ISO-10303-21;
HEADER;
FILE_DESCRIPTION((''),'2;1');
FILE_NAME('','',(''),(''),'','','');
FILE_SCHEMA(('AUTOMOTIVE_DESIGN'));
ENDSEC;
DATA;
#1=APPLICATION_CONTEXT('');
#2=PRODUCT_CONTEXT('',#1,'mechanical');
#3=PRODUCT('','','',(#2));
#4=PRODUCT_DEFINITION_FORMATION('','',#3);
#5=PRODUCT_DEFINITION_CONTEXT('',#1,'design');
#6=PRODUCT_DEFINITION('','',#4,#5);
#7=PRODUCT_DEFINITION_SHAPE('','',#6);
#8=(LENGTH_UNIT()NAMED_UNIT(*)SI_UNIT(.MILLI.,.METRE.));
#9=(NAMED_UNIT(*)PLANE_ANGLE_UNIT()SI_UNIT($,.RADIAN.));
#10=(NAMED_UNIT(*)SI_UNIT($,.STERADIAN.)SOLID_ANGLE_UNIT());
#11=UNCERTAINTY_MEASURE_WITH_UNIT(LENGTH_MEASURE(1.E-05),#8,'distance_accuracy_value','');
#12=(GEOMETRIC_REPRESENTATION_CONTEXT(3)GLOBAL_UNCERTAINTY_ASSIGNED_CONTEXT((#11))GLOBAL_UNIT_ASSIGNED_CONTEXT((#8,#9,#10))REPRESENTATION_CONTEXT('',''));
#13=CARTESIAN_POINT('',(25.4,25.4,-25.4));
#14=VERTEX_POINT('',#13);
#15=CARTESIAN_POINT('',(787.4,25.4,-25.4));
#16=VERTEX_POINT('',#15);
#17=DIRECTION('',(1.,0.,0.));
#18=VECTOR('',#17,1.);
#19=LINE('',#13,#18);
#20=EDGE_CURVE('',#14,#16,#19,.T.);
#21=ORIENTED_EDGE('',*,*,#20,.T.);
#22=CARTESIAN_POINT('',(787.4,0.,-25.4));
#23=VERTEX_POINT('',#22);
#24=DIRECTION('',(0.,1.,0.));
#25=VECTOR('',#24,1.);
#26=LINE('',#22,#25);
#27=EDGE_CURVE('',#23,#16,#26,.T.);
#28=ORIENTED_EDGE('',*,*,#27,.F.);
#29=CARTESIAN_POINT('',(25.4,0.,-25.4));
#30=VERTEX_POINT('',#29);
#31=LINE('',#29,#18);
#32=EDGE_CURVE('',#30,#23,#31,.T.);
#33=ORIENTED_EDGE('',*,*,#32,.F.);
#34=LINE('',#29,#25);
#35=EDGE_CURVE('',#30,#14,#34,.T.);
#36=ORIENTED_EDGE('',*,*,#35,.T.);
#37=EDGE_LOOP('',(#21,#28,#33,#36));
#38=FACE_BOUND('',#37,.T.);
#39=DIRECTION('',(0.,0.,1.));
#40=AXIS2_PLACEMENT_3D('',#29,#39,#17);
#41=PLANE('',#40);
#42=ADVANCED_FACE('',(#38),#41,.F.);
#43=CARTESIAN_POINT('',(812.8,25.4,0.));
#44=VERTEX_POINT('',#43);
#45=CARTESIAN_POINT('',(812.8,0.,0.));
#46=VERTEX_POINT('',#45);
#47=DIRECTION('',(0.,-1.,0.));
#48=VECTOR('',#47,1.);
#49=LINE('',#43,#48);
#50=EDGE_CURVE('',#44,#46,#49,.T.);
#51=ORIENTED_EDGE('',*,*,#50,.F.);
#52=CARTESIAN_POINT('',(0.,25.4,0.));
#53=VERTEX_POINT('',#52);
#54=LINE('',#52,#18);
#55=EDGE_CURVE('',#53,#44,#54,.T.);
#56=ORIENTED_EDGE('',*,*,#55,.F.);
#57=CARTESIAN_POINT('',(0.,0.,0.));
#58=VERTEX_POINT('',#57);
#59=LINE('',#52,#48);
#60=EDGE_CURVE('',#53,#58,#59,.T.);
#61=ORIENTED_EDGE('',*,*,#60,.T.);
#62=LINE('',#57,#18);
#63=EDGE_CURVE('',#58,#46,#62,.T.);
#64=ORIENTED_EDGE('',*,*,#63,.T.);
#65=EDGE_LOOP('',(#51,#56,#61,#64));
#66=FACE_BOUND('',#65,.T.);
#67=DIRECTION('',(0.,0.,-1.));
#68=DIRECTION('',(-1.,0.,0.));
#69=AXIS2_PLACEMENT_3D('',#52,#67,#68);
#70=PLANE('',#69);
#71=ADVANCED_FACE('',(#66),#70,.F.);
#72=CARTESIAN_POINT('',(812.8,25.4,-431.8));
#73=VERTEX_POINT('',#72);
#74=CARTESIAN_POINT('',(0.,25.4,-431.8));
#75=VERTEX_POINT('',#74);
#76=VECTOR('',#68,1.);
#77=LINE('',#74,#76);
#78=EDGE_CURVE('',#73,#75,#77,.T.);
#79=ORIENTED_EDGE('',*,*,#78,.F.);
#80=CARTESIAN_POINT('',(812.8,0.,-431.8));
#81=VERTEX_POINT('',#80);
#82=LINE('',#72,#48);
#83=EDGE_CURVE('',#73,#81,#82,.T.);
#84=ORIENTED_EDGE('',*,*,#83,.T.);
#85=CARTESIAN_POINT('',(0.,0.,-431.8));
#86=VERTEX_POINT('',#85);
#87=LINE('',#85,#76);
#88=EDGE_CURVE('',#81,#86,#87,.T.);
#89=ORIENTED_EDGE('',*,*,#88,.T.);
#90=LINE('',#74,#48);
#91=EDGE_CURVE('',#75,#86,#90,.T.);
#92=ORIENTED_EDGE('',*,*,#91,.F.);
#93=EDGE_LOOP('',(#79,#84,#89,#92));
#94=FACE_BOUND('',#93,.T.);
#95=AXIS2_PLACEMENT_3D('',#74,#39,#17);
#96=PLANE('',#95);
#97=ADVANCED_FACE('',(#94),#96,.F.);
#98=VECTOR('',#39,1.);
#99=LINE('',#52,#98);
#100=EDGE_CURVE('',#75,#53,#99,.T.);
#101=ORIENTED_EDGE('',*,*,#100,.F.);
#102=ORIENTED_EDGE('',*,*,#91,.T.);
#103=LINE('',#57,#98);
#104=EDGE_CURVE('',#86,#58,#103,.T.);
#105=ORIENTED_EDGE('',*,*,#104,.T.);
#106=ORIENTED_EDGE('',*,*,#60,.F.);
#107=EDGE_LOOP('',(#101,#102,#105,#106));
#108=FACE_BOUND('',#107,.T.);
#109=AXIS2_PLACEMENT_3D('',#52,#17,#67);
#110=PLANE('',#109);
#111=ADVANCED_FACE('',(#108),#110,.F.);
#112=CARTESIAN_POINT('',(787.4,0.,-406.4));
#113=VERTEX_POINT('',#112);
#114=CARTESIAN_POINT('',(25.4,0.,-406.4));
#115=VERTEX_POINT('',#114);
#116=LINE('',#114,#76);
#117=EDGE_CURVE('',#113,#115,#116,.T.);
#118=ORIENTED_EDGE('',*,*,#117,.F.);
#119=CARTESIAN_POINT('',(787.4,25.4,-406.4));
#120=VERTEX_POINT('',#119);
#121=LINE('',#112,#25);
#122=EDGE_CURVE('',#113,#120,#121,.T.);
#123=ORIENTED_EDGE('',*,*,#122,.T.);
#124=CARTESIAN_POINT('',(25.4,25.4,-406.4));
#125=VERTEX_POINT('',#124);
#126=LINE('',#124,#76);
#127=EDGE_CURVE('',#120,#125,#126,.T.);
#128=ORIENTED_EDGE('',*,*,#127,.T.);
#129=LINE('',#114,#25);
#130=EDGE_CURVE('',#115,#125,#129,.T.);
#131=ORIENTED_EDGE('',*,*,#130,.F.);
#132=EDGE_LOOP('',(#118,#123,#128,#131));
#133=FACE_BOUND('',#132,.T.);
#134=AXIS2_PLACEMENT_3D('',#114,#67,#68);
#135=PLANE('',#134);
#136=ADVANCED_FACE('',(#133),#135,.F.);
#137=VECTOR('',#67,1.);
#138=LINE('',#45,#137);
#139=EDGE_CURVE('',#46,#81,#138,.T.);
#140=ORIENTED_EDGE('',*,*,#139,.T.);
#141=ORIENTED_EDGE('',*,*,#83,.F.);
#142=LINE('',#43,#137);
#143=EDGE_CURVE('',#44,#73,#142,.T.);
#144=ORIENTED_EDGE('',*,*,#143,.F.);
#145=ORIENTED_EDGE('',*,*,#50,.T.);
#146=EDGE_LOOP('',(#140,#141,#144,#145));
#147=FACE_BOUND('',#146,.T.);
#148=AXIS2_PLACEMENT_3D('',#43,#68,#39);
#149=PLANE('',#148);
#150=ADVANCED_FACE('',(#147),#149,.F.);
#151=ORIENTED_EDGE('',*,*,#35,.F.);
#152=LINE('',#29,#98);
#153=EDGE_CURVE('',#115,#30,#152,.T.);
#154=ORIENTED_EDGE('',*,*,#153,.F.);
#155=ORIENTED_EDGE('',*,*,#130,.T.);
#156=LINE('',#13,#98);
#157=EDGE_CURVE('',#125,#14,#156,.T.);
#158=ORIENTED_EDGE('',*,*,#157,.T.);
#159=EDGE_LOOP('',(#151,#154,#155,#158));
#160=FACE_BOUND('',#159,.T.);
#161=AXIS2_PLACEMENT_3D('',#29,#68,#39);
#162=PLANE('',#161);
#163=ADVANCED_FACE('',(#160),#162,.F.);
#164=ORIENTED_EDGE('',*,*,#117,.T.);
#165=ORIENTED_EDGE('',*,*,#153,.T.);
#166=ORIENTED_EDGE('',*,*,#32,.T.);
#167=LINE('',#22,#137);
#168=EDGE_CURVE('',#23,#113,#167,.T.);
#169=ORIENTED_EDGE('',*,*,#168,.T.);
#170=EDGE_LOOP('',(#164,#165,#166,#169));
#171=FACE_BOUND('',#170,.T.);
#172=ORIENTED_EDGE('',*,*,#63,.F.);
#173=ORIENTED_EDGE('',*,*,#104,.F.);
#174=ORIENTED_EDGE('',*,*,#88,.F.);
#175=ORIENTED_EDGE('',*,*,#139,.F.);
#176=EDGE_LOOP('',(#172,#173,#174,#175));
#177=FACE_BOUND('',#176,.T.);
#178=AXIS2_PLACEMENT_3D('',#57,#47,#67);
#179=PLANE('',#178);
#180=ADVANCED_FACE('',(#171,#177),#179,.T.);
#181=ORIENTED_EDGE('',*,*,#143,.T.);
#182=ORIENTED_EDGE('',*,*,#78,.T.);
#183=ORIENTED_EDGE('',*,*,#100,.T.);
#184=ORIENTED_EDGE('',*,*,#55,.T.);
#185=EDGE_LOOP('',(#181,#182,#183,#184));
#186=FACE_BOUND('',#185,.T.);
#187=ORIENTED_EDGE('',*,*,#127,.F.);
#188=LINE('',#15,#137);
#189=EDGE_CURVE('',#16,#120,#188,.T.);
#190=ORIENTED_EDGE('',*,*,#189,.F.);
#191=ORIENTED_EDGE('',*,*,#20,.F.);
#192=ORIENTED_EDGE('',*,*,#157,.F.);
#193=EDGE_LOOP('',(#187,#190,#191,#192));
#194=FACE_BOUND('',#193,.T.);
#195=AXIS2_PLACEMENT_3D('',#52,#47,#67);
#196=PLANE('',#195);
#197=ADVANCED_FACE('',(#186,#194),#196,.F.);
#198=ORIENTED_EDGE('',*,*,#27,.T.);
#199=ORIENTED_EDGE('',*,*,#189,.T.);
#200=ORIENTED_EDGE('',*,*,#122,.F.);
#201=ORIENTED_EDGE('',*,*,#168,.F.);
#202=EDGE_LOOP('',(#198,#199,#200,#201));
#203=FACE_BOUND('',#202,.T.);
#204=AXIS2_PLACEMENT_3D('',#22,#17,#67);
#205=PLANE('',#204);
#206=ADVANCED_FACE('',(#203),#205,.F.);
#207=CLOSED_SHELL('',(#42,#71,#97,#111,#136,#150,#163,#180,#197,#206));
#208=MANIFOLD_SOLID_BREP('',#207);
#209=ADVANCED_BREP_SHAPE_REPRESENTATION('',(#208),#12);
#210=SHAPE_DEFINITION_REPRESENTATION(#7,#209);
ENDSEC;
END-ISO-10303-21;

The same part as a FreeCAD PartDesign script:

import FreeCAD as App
import Part
import Sketcher
from FreeCAD import Vector
Q = App.Units.Quantity

doc = App.newDocument("Part")
params = doc.addObject("Spreadsheet::Sheet", "Params")
for row, (alias, value) in enumerate([
    ("sketch1_width", "32 in"),
    ("sketch1_height", "17 in"),
    ("pad1_length", "1 in"),
    ("sketch2_width", "30 in"),
    ("sketch2_height", "15 in"),
], start=1):
    params.set(f"A{row}", alias)
    params.set(f"B{row}", "=" + value)
    params.setAlias(f"B{row}", alias)

body = doc.addObject("PartDesign::Body", "Body")

sketch1 = doc.addObject("Sketcher::SketchObject", "Sketch")
body.addObject(sketch1)
sketch1.AttachmentSupport = (doc.XZ_Plane, [""])
sketch1.MapMode = "FlatFace"
sketch1.addGeometry([
    Part.LineSegment(Vector(0, -432, 0), Vector(0, 0, 0)),
    Part.LineSegment(Vector(0, 0, 0), Vector(813, 0, 0)),
    Part.LineSegment(Vector(813, 0, 0), Vector(813, -432, 0)),
    Part.LineSegment(Vector(813, -432, 0), Vector(0, -432, 0)),
], False)
sketch1.addConstraint([
    Sketcher.Constraint("Coincident", 0, 2, 1, 1),
    Sketcher.Constraint("Coincident", 1, 2, 2, 1),
    Sketcher.Constraint("Coincident", 2, 2, 3, 1),
    Sketcher.Constraint("Coincident", 3, 2, 0, 1),
    Sketcher.Constraint("Vertical", 0),
    Sketcher.Constraint("Horizontal", 1),
    Sketcher.Constraint("Vertical", 2),
    Sketcher.Constraint("Horizontal", 3),
    Sketcher.Constraint("Coincident", 0, 2, -1, 1),
    Sketcher.Constraint("DistanceX", 1, 1, 1, 2, Q("32 in")),
    Sketcher.Constraint("DistanceY", 0, 1, 0, 2, Q("17 in")),
])
sketch1.setExpression("Constraints[9]", "Params.sketch1_width")
sketch1.setExpression("Constraints[10]", "Params.sketch1_height")
pad1 = doc.addObject("PartDesign::Pad", "Pad")
body.addObject(pad1)
pad1.Profile = sketch1
pad1.setExpression("Length", "Params.pad1_length")
pad1.Reversed = True

sketch2 = doc.addObject("Sketcher::SketchObject", "Sketch001")
body.addObject(sketch2)
sketch2.AttachmentSupport = (doc.XZ_Plane, [""])
sketch2.MapMode = "FlatFace"
sketch2.AttachmentOffset = App.Placement(Vector(0, 0, -1 * 25.4), App.Rotation())
sketch2.addGeometry([
    Part.LineSegment(Vector(25, -406, 0), Vector(25, -25, 0)),
    Part.LineSegment(Vector(25, -25, 0), Vector(787, -25, 0)),
    Part.LineSegment(Vector(787, -25, 0), Vector(787, -406, 0)),
    Part.LineSegment(Vector(787, -406, 0), Vector(25, -406, 0)),
], False)
sketch2.addConstraint([
    Sketcher.Constraint("Coincident", 0, 2, 1, 1),
    Sketcher.Constraint("Coincident", 1, 2, 2, 1),
    Sketcher.Constraint("Coincident", 2, 2, 3, 1),
    Sketcher.Constraint("Coincident", 3, 2, 0, 1),
    Sketcher.Constraint("Vertical", 0),
    Sketcher.Constraint("Horizontal", 1),
    Sketcher.Constraint("Vertical", 2),
    Sketcher.Constraint("Horizontal", 3),
    Sketcher.Constraint("DistanceX", 1, 1, 1, 2, Q("30 in")),
    Sketcher.Constraint("DistanceY", 0, 1, 0, 2, Q("15 in")),
    Sketcher.Constraint("DistanceX", -1, 1, 0, 2, Q("1 in")),
    Sketcher.Constraint("DistanceY", 0, 2, -1, 1, Q("1 in")),
])
sketch2.setExpression("Constraints[8]", "Params.sketch2_width")
sketch2.setExpression("Constraints[9]", "Params.sketch2_height")
pocket1 = doc.addObject("PartDesign::Pocket", "Pocket")
body.addObject(pocket1)
pocket1.Profile = sketch2
pocket1.Type = "ThroughAll"
pocket1.Reversed = True

doc.recompute()
